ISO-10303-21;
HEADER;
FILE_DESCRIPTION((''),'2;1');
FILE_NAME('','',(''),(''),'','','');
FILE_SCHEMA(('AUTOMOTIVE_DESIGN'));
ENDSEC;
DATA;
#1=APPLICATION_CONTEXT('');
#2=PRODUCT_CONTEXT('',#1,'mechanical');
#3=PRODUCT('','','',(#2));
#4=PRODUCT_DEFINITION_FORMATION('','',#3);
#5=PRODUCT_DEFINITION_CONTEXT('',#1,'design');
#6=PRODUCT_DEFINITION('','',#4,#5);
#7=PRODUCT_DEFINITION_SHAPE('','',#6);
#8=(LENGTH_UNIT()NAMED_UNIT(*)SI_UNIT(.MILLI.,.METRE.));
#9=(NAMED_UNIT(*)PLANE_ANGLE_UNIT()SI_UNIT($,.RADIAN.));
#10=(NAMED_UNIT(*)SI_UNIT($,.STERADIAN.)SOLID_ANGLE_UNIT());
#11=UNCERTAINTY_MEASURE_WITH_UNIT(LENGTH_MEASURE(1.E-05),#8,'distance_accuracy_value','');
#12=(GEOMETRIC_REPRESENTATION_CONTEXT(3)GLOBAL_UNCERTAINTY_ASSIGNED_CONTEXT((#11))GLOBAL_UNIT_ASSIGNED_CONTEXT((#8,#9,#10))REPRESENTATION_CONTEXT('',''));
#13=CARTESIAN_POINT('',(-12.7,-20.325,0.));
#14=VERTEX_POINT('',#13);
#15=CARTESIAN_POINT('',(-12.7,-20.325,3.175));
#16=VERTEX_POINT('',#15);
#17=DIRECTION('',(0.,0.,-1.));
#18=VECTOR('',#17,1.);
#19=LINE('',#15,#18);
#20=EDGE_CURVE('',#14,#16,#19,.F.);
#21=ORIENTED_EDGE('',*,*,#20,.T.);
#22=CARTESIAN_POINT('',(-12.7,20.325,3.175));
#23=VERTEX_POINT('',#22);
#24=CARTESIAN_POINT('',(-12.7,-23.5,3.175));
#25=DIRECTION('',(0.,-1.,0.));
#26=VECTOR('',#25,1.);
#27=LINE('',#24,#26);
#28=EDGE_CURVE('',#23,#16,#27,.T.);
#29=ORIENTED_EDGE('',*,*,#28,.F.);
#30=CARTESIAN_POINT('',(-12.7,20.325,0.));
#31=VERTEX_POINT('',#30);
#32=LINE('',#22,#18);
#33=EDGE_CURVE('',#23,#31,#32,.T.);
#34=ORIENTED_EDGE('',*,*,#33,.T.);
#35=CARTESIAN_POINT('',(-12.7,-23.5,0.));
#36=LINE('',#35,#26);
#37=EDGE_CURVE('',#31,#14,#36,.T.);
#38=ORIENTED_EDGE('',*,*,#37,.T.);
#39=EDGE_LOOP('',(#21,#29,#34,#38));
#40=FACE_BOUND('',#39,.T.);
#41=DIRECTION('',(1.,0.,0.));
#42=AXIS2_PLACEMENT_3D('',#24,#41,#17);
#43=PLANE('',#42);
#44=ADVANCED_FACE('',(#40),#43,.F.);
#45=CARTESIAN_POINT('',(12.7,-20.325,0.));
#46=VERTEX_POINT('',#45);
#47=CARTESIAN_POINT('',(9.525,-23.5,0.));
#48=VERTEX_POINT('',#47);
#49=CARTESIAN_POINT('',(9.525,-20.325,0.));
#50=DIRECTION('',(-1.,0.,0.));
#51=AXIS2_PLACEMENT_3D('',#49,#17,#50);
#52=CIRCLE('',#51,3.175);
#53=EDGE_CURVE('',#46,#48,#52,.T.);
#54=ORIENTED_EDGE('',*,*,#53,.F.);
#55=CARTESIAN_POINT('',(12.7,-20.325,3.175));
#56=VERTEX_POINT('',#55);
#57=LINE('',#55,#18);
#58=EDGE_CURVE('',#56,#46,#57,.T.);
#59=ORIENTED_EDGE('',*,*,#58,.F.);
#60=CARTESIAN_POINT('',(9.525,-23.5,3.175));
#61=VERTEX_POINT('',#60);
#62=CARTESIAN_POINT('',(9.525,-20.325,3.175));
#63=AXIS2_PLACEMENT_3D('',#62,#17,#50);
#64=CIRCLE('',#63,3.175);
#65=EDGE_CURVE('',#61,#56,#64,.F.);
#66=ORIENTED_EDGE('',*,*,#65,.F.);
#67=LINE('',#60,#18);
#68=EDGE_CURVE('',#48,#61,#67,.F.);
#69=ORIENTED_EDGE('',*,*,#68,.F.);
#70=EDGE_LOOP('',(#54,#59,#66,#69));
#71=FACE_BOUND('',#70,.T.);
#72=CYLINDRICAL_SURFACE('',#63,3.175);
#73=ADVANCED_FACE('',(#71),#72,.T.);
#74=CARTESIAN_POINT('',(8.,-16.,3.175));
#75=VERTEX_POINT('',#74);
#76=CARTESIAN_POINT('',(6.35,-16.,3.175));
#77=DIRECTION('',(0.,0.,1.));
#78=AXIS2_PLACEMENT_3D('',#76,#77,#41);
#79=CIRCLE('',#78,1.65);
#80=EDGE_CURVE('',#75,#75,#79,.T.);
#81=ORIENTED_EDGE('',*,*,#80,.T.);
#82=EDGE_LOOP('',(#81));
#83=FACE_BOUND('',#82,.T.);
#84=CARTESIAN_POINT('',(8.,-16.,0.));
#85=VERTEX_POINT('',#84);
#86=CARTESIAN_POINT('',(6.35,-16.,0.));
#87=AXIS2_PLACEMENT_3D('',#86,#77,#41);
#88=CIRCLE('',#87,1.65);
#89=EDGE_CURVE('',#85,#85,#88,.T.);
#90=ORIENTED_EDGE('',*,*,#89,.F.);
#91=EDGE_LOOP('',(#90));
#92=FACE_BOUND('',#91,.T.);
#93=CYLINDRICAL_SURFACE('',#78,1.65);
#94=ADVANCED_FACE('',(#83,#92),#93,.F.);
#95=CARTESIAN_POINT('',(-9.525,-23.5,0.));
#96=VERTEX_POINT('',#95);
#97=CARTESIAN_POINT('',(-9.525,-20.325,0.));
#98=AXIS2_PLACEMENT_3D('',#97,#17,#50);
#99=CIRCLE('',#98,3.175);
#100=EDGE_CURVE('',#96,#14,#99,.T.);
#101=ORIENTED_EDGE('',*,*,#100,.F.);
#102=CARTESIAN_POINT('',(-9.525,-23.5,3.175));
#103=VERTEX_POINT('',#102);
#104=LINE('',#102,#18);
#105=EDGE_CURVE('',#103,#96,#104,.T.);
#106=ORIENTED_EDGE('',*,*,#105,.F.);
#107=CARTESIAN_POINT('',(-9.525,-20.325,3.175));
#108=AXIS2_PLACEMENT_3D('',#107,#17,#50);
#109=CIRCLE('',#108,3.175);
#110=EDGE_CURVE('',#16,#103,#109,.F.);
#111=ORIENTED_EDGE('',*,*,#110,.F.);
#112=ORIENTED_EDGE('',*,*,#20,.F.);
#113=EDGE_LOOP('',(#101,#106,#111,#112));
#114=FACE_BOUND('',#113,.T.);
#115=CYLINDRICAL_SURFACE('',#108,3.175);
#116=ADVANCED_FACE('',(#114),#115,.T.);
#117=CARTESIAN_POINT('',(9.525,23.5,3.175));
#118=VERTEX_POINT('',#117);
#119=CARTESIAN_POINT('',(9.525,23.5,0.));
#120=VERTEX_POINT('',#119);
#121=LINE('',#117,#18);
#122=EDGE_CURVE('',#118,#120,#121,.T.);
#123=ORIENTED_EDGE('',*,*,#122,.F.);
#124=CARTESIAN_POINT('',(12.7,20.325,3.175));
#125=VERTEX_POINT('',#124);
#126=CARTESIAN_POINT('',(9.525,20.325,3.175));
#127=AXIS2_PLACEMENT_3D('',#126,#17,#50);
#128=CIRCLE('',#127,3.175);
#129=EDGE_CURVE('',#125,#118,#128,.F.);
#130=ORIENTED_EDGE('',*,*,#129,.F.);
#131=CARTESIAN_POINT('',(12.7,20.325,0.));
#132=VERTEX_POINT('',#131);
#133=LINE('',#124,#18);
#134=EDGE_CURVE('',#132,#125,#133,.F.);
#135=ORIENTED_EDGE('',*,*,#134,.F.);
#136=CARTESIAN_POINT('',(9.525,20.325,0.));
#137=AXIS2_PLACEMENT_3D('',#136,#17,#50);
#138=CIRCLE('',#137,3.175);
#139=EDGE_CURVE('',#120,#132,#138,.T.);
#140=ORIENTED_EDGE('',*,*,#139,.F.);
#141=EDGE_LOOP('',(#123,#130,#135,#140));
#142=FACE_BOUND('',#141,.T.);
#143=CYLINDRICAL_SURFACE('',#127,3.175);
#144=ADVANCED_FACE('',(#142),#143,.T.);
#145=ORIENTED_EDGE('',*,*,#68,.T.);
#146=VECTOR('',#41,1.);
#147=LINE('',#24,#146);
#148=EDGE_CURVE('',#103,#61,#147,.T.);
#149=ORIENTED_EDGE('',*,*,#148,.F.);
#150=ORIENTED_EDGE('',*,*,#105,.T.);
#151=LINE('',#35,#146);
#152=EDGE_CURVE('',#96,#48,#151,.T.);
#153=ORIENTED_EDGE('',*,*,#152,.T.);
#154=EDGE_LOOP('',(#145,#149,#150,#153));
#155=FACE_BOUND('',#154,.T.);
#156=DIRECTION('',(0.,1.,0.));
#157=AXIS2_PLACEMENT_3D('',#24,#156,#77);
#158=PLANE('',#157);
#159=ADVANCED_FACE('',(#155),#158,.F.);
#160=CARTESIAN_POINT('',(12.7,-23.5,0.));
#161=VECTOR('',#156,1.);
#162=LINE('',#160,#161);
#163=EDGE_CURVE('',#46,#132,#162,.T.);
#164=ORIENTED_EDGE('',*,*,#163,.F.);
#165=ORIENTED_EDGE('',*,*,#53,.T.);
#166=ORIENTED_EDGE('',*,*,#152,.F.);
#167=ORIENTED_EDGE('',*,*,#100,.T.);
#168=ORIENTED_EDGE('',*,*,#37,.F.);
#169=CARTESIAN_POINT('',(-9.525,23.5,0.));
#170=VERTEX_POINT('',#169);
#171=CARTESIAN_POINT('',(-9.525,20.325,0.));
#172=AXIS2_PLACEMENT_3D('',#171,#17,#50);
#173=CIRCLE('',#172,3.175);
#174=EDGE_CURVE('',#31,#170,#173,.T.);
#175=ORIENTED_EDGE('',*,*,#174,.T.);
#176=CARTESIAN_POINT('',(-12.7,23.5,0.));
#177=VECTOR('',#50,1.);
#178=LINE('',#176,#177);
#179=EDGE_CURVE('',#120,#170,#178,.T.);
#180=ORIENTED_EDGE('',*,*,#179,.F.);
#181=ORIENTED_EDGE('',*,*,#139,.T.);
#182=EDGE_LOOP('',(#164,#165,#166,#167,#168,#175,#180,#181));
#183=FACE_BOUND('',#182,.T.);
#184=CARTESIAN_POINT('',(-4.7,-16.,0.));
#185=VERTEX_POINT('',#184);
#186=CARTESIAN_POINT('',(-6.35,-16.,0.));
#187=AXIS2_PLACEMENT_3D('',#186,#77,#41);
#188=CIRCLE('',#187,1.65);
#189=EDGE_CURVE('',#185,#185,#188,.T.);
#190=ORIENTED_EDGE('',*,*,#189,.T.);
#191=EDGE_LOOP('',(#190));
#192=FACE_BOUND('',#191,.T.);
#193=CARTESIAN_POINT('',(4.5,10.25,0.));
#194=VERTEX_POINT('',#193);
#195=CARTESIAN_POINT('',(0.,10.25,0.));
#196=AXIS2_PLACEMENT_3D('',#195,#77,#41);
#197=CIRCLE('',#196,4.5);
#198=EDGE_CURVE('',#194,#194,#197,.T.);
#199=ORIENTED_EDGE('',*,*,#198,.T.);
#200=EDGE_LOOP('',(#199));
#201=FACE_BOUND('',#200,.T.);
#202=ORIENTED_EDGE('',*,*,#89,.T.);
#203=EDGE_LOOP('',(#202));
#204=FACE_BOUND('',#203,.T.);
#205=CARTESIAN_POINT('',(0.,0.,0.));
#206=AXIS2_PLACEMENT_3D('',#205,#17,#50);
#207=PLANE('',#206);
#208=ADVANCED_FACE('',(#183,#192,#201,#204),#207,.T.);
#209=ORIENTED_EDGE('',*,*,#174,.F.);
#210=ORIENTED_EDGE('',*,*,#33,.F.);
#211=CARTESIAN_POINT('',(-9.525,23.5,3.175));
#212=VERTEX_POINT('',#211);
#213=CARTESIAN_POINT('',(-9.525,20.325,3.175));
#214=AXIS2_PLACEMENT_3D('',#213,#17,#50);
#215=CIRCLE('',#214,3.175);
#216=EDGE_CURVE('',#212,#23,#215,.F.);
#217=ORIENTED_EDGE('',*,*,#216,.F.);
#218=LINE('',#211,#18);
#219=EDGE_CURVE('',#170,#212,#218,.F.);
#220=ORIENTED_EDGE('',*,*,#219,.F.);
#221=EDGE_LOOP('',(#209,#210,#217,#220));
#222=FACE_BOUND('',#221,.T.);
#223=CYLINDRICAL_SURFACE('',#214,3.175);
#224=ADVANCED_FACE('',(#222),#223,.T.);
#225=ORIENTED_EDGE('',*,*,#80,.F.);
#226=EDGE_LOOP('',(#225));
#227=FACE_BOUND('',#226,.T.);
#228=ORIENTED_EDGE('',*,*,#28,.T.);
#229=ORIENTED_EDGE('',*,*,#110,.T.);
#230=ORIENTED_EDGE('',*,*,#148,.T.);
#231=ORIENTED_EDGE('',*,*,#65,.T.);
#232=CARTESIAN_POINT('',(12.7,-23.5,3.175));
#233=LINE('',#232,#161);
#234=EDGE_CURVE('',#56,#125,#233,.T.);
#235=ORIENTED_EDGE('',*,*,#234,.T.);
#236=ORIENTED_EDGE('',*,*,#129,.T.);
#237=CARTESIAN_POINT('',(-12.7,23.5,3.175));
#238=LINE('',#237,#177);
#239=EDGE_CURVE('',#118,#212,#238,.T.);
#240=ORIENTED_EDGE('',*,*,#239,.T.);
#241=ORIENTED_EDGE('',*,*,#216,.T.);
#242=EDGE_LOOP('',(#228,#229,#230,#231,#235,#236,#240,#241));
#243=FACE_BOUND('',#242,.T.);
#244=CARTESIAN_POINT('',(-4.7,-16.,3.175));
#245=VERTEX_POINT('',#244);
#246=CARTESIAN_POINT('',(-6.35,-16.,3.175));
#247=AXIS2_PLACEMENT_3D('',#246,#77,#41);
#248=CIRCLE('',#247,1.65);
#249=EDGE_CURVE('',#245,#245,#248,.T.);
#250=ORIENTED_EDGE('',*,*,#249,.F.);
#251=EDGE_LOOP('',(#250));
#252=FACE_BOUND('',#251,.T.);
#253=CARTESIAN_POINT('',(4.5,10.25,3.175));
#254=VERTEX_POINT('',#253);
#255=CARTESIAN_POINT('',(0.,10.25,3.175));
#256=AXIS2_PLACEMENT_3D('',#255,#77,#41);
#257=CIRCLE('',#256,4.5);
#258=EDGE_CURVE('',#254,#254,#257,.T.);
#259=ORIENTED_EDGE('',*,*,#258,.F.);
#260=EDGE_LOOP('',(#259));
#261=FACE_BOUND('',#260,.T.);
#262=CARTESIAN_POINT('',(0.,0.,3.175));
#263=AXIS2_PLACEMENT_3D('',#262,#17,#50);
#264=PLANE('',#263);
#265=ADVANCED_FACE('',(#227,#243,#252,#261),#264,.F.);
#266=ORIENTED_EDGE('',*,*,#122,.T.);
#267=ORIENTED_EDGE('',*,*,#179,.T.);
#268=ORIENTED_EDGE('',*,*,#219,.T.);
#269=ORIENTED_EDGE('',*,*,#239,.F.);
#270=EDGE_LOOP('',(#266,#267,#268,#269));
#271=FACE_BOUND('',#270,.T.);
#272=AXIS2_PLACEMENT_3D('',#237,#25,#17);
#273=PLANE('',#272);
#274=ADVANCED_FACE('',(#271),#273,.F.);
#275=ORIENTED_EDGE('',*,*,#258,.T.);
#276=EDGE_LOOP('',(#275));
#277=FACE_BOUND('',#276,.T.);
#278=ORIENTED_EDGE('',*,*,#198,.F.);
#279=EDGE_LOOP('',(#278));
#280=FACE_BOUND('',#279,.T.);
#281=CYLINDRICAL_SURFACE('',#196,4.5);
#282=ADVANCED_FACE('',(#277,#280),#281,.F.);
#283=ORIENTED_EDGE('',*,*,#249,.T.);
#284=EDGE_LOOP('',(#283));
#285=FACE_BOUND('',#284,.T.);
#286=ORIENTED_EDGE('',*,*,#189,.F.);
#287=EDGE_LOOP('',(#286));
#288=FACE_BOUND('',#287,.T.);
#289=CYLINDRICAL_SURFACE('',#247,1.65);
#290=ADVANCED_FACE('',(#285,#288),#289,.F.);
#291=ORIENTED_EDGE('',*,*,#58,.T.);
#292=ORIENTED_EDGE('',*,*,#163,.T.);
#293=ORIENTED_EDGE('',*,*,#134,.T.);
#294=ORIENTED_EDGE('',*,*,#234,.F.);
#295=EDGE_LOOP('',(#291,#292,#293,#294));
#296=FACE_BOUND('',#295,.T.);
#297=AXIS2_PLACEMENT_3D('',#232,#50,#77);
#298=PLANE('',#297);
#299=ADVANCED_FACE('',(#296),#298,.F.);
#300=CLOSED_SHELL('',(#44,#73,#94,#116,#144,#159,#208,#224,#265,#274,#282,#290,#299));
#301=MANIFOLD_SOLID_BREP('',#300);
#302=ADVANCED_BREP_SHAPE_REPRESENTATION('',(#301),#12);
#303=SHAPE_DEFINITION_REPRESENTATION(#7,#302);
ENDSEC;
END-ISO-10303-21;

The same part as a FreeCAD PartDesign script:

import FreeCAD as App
import Part
import Sketcher
Q = App.Units.Quantity


def edges_at(feature, points):
    """Names of the edges that pass closest to the given points."""
    edges = feature.Shape.Edges
    near = lambda p: min(range(len(edges)), key=lambda i: edges[i].distToShape(Part.Vertex(*p))[0])
    return sorted({f"Edge{near(p) + 1}" for p in points})


def add_polygon(sketch, points):
    """Adds a closed chain of lines whose ends are joined by coincident constraints."""
    first, n = sketch.GeometryCount, len(points)
    for a, b in zip(points, points[1:] + points[:1]):
        sketch.addGeometry(Part.LineSegment(App.Vector(*a, 0), App.Vector(*b, 0)), False)
    for i in range(n):
        sketch.addConstraint(Sketcher.Constraint("Coincident", first + i, 2, first + (i + 1) % n, 1))

doc = App.newDocument("Part")
params = doc.addObject("Spreadsheet::Sheet", "Params")
for row, (alias, value) in enumerate([
    ("sketch1_height", "47 mm"),
    ("sketch1_width", "25.4 mm"),
    ("pad1_length", "3.175 mm"),
    ("sketch2_diameter", "9 mm"),
    ("fillet_radius", "3.175 mm"),
    ("sketch3_diameter", "3.3 mm"),
    ("hole_diameter", "3.3 mm"),
], start=1):
    params.set(f"A{row}", alias)
    params.set(f"B{row}", "=" + value)
    params.setAlias(f"B{row}", alias)

body = doc.addObject("PartDesign::Body", "Body")

sketch1 = doc.addObject("Sketcher::SketchObject", "Sketch")
body.addObject(sketch1)
sketch1.AttachmentSupport = (doc.XY_Plane, [""])
sketch1.MapMode = "FlatFace"
add_polygon(sketch1, [(-13, 24), (-13, -24), (13, -24), (13, 24)])
sketch1.addConstraint([
    Sketcher.Constraint("Vertical", 0),
    Sketcher.Constraint("Horizontal", 1),
    Sketcher.Constraint("Vertical", 2),
    Sketcher.Constraint("Horizontal", 3),
    Sketcher.Constraint("Symmetric", 0, 2, 2, 2, -1, 1),
    Sketcher.Constraint("DistanceY", 0, 2, 0, 1, Q("47 mm")),
    Sketcher.Constraint("DistanceX", 1, 1, 1, 2, Q("25.4 mm")),
])
sketch1.setExpression("Constraints[9]", "Params.sketch1_height")
sketch1.setExpression("Constraints[10]", "Params.sketch1_width")
pad1 = doc.addObject("PartDesign::Pad", "Pad")
body.addObject(pad1)
pad1.Profile = sketch1
pad1.setExpression("Length", "Params.pad1_length")

sketch2 = doc.addObject("Sketcher::SketchObject", "Sketch001")
body.addObject(sketch2)
sketch2.AttachmentSupport = (doc.XY_Plane, [""])
sketch2.MapMode = "FlatFace"
sketch2.AttachmentOffset = App.Placement(App.Vector(0, 0, 3.175), App.Rotation())
sketch2.addGeometry(Part.Circle(App.Vector(0, 10.2, 0), App.Vector(0, 0, 1), 4.5), False)
sketch2.addConstraint([
    Sketcher.Constraint("PointOnObject", 0, 3, -2),
    Sketcher.Constraint("Diameter", 0, Q("9 mm")),
    Sketcher.Constraint("DistanceY", -1, 1, 0, 3, Q("10.25 mm")),
])
sketch2.setExpression("Constraints[1]", "Params.sketch2_diameter")
pocket1 = doc.addObject("PartDesign::Pocket", "Pocket")
body.addObject(pocket1)
pocket1.Profile = sketch2
pocket1.Type = "ThroughAll"
doc.recompute()

fillet = doc.addObject("PartDesign::Fillet", "Fillet")
body.addObject(fillet)
fillet.Base = (pocket1, edges_at(pocket1, [
    (12.7, -23.5, 1.587),
    (-12.7, -23.5, 1.587),
    (-12.7, 23.5, 1.587),
    (12.7, 23.5, 1.587),
]))
fillet.setExpression("Radius", "Params.fillet_radius")

sketch3 = doc.addObject("Sketcher::SketchObject", "Sketch002")
body.addObject(sketch3)
sketch3.AttachmentSupport = (doc.XY_Plane, [""])
sketch3.MapMode = "FlatFace"
sketch3.AttachmentOffset = App.Placement(App.Vector(0, 0, 3.175), App.Rotation())
sketch3.addGeometry([
    Part.Circle(App.Vector(-6.3, -16, 0), App.Vector(0, 0, 1), 1.6),
    Part.Circle(App.Vector(6.3, -16, 0), App.Vector(0, 0, 1), 1.6),
], False)
sketch3.addConstraint([
    Sketcher.Constraint("Equal", 0, 1),
    Sketcher.Constraint("Symmetric", 0, 3, 1, 3, -2),
    Sketcher.Constraint("Diameter", 0, Q("3.3 mm")),
    Sketcher.Constraint("DistanceY", 0, 3, -1, 1, Q("16 mm")),
    Sketcher.Constraint("DistanceX", 0, 3, 1, 3, Q("12.7 mm")),
])
sketch3.setExpression("Constraints[2]", "Params.sketch3_diameter")
doc.recompute()
hole = doc.addObject("PartDesign::Hole", "Hole")
body.addObject(hole)
hole.Profile = sketch3
hole.ThreadType = "None"
hole.setExpression("Diameter", "Params.hole_diameter")
hole.DepthType = "ThroughAll"

doc.recompute()
